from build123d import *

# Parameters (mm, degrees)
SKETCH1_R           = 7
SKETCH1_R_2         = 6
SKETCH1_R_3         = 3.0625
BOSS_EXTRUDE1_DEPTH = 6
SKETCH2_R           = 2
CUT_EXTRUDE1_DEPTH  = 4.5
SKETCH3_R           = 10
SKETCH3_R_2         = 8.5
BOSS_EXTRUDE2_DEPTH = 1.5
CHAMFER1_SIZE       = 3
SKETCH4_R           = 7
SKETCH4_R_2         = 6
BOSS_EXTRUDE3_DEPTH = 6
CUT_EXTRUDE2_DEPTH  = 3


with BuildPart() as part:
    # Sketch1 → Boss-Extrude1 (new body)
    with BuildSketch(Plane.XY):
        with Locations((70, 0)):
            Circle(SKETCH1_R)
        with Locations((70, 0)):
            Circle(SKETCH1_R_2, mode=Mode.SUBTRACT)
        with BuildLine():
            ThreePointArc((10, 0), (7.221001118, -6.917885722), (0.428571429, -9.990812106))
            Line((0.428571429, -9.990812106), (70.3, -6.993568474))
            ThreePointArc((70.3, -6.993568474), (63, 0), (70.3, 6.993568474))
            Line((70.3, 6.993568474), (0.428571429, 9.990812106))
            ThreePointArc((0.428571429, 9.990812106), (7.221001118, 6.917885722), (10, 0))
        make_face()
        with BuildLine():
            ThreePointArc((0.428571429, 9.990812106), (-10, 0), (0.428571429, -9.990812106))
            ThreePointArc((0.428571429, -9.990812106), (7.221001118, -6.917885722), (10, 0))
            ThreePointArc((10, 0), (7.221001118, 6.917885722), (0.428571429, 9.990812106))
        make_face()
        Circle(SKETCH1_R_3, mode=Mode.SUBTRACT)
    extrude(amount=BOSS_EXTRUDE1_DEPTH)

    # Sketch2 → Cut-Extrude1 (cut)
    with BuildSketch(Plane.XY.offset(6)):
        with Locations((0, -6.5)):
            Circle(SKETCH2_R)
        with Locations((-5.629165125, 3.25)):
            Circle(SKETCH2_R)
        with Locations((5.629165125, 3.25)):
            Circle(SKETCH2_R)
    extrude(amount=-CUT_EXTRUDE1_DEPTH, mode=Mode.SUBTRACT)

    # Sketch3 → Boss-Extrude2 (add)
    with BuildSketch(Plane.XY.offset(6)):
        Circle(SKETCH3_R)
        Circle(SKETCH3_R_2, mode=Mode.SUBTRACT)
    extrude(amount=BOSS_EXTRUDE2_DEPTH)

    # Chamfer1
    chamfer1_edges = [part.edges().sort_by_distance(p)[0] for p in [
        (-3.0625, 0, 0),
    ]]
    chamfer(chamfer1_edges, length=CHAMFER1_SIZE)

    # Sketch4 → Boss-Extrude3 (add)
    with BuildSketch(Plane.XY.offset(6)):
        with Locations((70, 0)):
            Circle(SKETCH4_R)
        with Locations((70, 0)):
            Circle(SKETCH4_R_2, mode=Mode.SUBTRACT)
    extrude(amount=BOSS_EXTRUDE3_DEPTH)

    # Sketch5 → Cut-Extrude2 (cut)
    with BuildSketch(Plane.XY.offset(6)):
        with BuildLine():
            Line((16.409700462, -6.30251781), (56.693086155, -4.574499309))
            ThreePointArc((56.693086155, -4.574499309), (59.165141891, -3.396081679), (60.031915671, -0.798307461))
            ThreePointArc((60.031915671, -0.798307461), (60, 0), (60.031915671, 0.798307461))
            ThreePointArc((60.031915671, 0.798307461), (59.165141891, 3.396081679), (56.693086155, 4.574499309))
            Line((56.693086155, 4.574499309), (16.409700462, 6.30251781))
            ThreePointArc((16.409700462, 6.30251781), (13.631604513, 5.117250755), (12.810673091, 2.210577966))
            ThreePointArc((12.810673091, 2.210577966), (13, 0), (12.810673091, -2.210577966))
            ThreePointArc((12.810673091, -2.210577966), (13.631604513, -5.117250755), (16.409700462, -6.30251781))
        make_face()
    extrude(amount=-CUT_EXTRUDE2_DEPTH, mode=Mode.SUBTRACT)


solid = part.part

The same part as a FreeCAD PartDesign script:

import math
import FreeCAD as App
import Part
import Sketcher

V = App.Vector
Q = App.Units.Quantity


def edges_at(feature, points):
    """Names of the edges that pass closest to the given points."""
    edges = feature.Shape.Edges
    near = lambda p: min(range(len(edges)), key=lambda i: edges[i].distToShape(Part.Vertex(*p))[0])
    return sorted({f"Edge{near(p) + 1}" for p in points})

doc = App.newDocument("Part")
params = doc.addObject("Spreadsheet::Sheet", "Params")
for row, (alias, value) in enumerate([
    ("sketch1_diameter", "12 mm"),
    ("sketch1_radius", "10 mm"),
    ("sketch1_radius2", "7 mm"),
    ("pad1_length", "6 mm"),
    ("sketch2_diameter", "4 mm"),
    ("pocket1_length", "4.5 mm"),
    ("sketch3_diameter", "20 mm"),
    ("sketch3_diameter2", "17 mm"),
    ("pad2_length", "1.5 mm"),
    ("chamfer_size", "3 mm"),
    ("sketch4_diameter", "14 mm"),
    ("sketch4_diameter2", "12 mm"),
    ("pad3_length", "6 mm"),
    ("sketch5_radius", "10 mm"),
    ("sketch5_radius2", "13 mm"),
    ("sketch5_radius3", "3.5 mm"),
    ("pocket2_length", "3 mm"),
], start=1):
    params.set(f"A{row}", alias)
    params.set(f"B{row}", "=" + value)
    params.setAlias(f"B{row}", alias)

body = doc.addObject("PartDesign::Body", "Body")

sketch1 = body.newObject("Sketcher::SketchObject", "Sketch")
sketch1.AttachmentSupport = (doc.getObject("XY_Plane"), [""])
sketch1.MapMode = "FlatFace"
sketch1.addGeometry([
    Part.LineSegment(V(70.3, 7, 0), V(0.4, 10, 0)),
    Part.ArcOfCircle(Part.Circle(V(0, 0, 0), V(0, 0, 1), 10), math.radians(88), math.radians(272)),
    Part.LineSegment(V(0.4, -10, 0), V(70.3, -7, 0)),
    Part.ArcOfCircle(Part.Circle(V(70, 0, 0), V(0, 0, 1), 7), math.radians(-88), math.radians(88)),
    Part.Circle(V(0, 0, 0), V(0, 0, 1), 3.1),
    Part.Circle(V(70, 0, 0), V(0, 0, 1), 6),
], False)
sketch1.addConstraint([
    Sketcher.Constraint("Tangent", 0, 2, 1, 1),
    Sketcher.Constraint("Tangent", 1, 2, 2, 1),
    Sketcher.Constraint("Tangent", 2, 2, 3, 1),
    Sketcher.Constraint("Tangent", 3, 2, 0, 1),
    Sketcher.Constraint("Coincident", 1, 3, -1, 1),
    Sketcher.Constraint("Coincident", 4, 3, -1, 1),
    Sketcher.Constraint("Coincident", 5, 3, 3, 3),
    Sketcher.Constraint("PointOnObject", 3, 3, -1),
    Sketcher.Constraint("Diameter", 5, Q("12 mm")),
    Sketcher.Constraint("Radius", 1, Q("10 mm")),
    Sketcher.Constraint("Radius", 3, Q("7 mm")),
    Sketcher.Constraint("Diameter", 4, Q("6.125 mm")),
    Sketcher.Constraint("DistanceX", -1, 1, 3, 3, Q("70 mm")),
])
sketch1.setExpression("Constraints[8]", "Params.sketch1_diameter")
sketch1.setExpression("Constraints[9]", "Params.sketch1_radius")
sketch1.setExpression("Constraints[10]", "Params.sketch1_radius2")
pad1 = body.newObject("PartDesign::Pad", "Pad")
pad1.Profile = sketch1
pad1.setExpression("Length", "Params.pad1_length")

sketch2 = body.newObject("Sketcher::SketchObject", "Sketch001")
sketch2.AttachmentSupport = (doc.getObject("XY_Plane"), [""])
sketch2.MapMode = "FlatFace"
sketch2.AttachmentOffset = App.Placement(V(0, 0, 6), App.Rotation())
sketch2.addGeometry([
    Part.Circle(V(0, -6.5, 0), V(0, 0, 1), 2),
    Part.Circle(V(-5.6, 3.2, 0), V(0, 0, 1), 2),
    Part.Circle(V(5.6, 3.2, 0), V(0, 0, 1), 2),
], False)
sketch2.addConstraint([
    Sketcher.Constraint("Equal", 0, 1),
    Sketcher.Constraint("Equal", 1, 2),
    Sketcher.Constraint("Symmetric", 1, 3, 2, 3, -2),
    Sketcher.Constraint("PointOnObject", 0, 3, -2),
    Sketcher.Constraint("Diameter", 0, Q("4 mm")),
    Sketcher.Constraint("DistanceY", 0, 3, -1, 1, Q("6.5 mm")),
    Sketcher.Constraint("DistanceY", -1, 1, 1, 3, Q("3.25 mm")),
    Sketcher.Constraint("DistanceX", 1, 3, 2, 3, Q("11.25833 mm")),
])
sketch2.setExpression("Constraints[4]", "Params.sketch2_diameter")
pocket1 = body.newObject("PartDesign::Pocket", "Pocket")
pocket1.Profile = sketch2
pocket1.setExpression("Length", "Params.pocket1_length")

sketch3 = body.newObject("Sketcher::SketchObject", "Sketch002")
sketch3.AttachmentSupport = (doc.getObject("XY_Plane"), [""])
sketch3.MapMode = "FlatFace"
sketch3.AttachmentOffset = App.Placement(V(0, 0, 6), App.Rotation())
sketch3.addGeometry([
    Part.Circle(V(0, 0, 0), V(0, 0, 1), 10),
    Part.Circle(V(0, 0, 0), V(0, 0, 1), 8),
], False)
sketch3.addConstraint([
    Sketcher.Constraint("Coincident", 0, 3, -1, 1),
    Sketcher.Constraint("Coincident", 1, 3, -1, 1),
    Sketcher.Constraint("Diameter", 0, Q("20 mm")),
    Sketcher.Constraint("Diameter", 1, Q("17 mm")),
])
sketch3.setExpression("Constraints[2]", "Params.sketch3_diameter")
sketch3.setExpression("Constraints[3]", "Params.sketch3_diameter2")
pad2 = body.newObject("PartDesign::Pad", "Pad001")
pad2.Profile = sketch3
pad2.setExpression("Length", "Params.pad2_length")
doc.recompute()

chamfer = body.newObject("PartDesign::Chamfer", "Chamfer")
chamfer.Base = (pad2, edges_at(pad2, [(-3.062, 0, 0)]))
chamfer.setExpression("Size", "Params.chamfer_size")

sketch4 = body.newObject("Sketcher::SketchObject", "Sketch003")
sketch4.AttachmentSupport = (doc.getObject("XY_Plane"), [""])
sketch4.MapMode = "FlatFace"
sketch4.AttachmentOffset = App.Placement(V(0, 0, 6), App.Rotation())
sketch4.addGeometry([
    Part.Circle(V(70, 0, 0), V(0, 0, 1), 7),
    Part.Circle(V(70, 0, 0), V(0, 0, 1), 6),
], False)
sketch4.addConstraint([
    Sketcher.Constraint("Coincident", 1, 3, 0, 3),
    Sketcher.Constraint("PointOnObject", 0, 3, -1),
    Sketcher.Constraint("Diameter", 0, Q("14 mm")),
    Sketcher.Constraint("Diameter", 1, Q("12 mm")),
    Sketcher.Constraint("DistanceX", -1, 1, 0, 3, Q("70 mm")),
])
sketch4.setExpression("Constraints[2]", "Params.sketch4_diameter")
sketch4.setExpression("Constraints[3]", "Params.sketch4_diameter2")
pad3 = body.newObject("PartDesign::Pad", "Pad002")
pad3.Profile = sketch4
pad3.setExpression("Length", "Params.pad3_length")

sketch5 = body.newObject("Sketcher::SketchObject", "Sketch004")
sketch5.AttachmentSupport = (doc.getObject("XY_Plane"), [""])
sketch5.MapMode = "FlatFace"
sketch5.AttachmentOffset = App.Placement(V(0, 0, 6), App.Rotation())
sketch5.addGeometry([
    Part.LineSegment(V(16.4, -6.3, 0), V(56.7, -4.6, 0)),
    Part.ArcOfCircle(Part.Circle(V(56.5, -1.1, 0), V(0, 0, 1), 3.5), math.radians(-88), math.radians(5)),
    Part.ArcOfCircle(Part.Circle(V(70, 0, 0), V(0, 0, 1), 10), math.radians(175.42), math.radians(184.58)),
    Part.ArcOfCircle(Part.Circle(V(56.5, 1.1, 0), V(0, 0, 1), 3.5), math.radians(-5), math.radians(88)),
    Part.LineSegment(V(56.7, 4.6, 0), V(16.4, 6.3, 0)),
    Part.ArcOfCircle(Part.Circle(V(16.3, 2.8, 0), V(0, 0, 1), 3.5), math.radians(88), math.radians(190)),
    Part.ArcOfCircle(Part.Circle(V(0, 0, 0), V(0, 0, 1), 13), math.radians(-9.79), math.radians(9.79)),
    Part.ArcOfCircle(Part.Circle(V(16.3, -2.8, 0), V(0, 0, 1), 3.5), math.radians(170), math.radians(272)),
], False)
sketch5.addConstraint([
    Sketcher.Constraint("Tangent", 0, 2, 1, 1),
    Sketcher.Constraint("Tangent", 1, 2, 2, 2),
    Sketcher.Constraint("Tangent", 2, 1, 3, 1),
    Sketcher.Constraint("Tangent", 3, 2, 4, 1),
    Sketcher.Constraint("Tangent", 4, 2, 5, 1),
    Sketcher.Constraint("Tangent", 5, 2, 6, 2),
    Sketcher.Constraint("Tangent", 6, 1, 7, 1),
    Sketcher.Constraint("Tangent", 7, 2, 0, 1),
    Sketcher.Constraint("Coincident", 6, 3, -1, 1),
    Sketcher.Constraint("Equal", 1, 3),
    Sketcher.Constraint("Equal", 3, 5),
    Sketcher.Constraint("Equal", 5, 7),
    Sketcher.Constraint("Symmetric", 1, 3, 3, 3, -1),
    Sketcher.Constraint("Vertical", 5, 3, 7, 3),
    Sketcher.Constraint("Radius", 2, Q("10 mm")),
    Sketcher.Constraint("Radius", 6, Q("13 mm")),
    Sketcher.Constraint("Radius", 1, Q("3.5 mm")),
    Sketcher.Constraint("DistanceX", -1, 1, 2, 3, Q("70 mm")),
    Sketcher.Constraint("DistanceX", 1, 3, 0, 2, Q("0.15 mm")),
    Sketcher.Constraint("DistanceY", 0, 2, 3, 2, Q("9.148999 mm")),
])
sketch5.setExpression("Constraints[14]", "Params.sketch5_radius")
sketch5.setExpression("Constraints[15]", "Params.sketch5_radius2")
sketch5.setExpression("Constraints[16]", "Params.sketch5_radius3")
pocket2 = body.newObject("PartDesign::Pocket", "Pocket001")
pocket2.Profile = sketch5
pocket2.setExpression("Length", "Params.pocket2_length")

doc.recompute()
